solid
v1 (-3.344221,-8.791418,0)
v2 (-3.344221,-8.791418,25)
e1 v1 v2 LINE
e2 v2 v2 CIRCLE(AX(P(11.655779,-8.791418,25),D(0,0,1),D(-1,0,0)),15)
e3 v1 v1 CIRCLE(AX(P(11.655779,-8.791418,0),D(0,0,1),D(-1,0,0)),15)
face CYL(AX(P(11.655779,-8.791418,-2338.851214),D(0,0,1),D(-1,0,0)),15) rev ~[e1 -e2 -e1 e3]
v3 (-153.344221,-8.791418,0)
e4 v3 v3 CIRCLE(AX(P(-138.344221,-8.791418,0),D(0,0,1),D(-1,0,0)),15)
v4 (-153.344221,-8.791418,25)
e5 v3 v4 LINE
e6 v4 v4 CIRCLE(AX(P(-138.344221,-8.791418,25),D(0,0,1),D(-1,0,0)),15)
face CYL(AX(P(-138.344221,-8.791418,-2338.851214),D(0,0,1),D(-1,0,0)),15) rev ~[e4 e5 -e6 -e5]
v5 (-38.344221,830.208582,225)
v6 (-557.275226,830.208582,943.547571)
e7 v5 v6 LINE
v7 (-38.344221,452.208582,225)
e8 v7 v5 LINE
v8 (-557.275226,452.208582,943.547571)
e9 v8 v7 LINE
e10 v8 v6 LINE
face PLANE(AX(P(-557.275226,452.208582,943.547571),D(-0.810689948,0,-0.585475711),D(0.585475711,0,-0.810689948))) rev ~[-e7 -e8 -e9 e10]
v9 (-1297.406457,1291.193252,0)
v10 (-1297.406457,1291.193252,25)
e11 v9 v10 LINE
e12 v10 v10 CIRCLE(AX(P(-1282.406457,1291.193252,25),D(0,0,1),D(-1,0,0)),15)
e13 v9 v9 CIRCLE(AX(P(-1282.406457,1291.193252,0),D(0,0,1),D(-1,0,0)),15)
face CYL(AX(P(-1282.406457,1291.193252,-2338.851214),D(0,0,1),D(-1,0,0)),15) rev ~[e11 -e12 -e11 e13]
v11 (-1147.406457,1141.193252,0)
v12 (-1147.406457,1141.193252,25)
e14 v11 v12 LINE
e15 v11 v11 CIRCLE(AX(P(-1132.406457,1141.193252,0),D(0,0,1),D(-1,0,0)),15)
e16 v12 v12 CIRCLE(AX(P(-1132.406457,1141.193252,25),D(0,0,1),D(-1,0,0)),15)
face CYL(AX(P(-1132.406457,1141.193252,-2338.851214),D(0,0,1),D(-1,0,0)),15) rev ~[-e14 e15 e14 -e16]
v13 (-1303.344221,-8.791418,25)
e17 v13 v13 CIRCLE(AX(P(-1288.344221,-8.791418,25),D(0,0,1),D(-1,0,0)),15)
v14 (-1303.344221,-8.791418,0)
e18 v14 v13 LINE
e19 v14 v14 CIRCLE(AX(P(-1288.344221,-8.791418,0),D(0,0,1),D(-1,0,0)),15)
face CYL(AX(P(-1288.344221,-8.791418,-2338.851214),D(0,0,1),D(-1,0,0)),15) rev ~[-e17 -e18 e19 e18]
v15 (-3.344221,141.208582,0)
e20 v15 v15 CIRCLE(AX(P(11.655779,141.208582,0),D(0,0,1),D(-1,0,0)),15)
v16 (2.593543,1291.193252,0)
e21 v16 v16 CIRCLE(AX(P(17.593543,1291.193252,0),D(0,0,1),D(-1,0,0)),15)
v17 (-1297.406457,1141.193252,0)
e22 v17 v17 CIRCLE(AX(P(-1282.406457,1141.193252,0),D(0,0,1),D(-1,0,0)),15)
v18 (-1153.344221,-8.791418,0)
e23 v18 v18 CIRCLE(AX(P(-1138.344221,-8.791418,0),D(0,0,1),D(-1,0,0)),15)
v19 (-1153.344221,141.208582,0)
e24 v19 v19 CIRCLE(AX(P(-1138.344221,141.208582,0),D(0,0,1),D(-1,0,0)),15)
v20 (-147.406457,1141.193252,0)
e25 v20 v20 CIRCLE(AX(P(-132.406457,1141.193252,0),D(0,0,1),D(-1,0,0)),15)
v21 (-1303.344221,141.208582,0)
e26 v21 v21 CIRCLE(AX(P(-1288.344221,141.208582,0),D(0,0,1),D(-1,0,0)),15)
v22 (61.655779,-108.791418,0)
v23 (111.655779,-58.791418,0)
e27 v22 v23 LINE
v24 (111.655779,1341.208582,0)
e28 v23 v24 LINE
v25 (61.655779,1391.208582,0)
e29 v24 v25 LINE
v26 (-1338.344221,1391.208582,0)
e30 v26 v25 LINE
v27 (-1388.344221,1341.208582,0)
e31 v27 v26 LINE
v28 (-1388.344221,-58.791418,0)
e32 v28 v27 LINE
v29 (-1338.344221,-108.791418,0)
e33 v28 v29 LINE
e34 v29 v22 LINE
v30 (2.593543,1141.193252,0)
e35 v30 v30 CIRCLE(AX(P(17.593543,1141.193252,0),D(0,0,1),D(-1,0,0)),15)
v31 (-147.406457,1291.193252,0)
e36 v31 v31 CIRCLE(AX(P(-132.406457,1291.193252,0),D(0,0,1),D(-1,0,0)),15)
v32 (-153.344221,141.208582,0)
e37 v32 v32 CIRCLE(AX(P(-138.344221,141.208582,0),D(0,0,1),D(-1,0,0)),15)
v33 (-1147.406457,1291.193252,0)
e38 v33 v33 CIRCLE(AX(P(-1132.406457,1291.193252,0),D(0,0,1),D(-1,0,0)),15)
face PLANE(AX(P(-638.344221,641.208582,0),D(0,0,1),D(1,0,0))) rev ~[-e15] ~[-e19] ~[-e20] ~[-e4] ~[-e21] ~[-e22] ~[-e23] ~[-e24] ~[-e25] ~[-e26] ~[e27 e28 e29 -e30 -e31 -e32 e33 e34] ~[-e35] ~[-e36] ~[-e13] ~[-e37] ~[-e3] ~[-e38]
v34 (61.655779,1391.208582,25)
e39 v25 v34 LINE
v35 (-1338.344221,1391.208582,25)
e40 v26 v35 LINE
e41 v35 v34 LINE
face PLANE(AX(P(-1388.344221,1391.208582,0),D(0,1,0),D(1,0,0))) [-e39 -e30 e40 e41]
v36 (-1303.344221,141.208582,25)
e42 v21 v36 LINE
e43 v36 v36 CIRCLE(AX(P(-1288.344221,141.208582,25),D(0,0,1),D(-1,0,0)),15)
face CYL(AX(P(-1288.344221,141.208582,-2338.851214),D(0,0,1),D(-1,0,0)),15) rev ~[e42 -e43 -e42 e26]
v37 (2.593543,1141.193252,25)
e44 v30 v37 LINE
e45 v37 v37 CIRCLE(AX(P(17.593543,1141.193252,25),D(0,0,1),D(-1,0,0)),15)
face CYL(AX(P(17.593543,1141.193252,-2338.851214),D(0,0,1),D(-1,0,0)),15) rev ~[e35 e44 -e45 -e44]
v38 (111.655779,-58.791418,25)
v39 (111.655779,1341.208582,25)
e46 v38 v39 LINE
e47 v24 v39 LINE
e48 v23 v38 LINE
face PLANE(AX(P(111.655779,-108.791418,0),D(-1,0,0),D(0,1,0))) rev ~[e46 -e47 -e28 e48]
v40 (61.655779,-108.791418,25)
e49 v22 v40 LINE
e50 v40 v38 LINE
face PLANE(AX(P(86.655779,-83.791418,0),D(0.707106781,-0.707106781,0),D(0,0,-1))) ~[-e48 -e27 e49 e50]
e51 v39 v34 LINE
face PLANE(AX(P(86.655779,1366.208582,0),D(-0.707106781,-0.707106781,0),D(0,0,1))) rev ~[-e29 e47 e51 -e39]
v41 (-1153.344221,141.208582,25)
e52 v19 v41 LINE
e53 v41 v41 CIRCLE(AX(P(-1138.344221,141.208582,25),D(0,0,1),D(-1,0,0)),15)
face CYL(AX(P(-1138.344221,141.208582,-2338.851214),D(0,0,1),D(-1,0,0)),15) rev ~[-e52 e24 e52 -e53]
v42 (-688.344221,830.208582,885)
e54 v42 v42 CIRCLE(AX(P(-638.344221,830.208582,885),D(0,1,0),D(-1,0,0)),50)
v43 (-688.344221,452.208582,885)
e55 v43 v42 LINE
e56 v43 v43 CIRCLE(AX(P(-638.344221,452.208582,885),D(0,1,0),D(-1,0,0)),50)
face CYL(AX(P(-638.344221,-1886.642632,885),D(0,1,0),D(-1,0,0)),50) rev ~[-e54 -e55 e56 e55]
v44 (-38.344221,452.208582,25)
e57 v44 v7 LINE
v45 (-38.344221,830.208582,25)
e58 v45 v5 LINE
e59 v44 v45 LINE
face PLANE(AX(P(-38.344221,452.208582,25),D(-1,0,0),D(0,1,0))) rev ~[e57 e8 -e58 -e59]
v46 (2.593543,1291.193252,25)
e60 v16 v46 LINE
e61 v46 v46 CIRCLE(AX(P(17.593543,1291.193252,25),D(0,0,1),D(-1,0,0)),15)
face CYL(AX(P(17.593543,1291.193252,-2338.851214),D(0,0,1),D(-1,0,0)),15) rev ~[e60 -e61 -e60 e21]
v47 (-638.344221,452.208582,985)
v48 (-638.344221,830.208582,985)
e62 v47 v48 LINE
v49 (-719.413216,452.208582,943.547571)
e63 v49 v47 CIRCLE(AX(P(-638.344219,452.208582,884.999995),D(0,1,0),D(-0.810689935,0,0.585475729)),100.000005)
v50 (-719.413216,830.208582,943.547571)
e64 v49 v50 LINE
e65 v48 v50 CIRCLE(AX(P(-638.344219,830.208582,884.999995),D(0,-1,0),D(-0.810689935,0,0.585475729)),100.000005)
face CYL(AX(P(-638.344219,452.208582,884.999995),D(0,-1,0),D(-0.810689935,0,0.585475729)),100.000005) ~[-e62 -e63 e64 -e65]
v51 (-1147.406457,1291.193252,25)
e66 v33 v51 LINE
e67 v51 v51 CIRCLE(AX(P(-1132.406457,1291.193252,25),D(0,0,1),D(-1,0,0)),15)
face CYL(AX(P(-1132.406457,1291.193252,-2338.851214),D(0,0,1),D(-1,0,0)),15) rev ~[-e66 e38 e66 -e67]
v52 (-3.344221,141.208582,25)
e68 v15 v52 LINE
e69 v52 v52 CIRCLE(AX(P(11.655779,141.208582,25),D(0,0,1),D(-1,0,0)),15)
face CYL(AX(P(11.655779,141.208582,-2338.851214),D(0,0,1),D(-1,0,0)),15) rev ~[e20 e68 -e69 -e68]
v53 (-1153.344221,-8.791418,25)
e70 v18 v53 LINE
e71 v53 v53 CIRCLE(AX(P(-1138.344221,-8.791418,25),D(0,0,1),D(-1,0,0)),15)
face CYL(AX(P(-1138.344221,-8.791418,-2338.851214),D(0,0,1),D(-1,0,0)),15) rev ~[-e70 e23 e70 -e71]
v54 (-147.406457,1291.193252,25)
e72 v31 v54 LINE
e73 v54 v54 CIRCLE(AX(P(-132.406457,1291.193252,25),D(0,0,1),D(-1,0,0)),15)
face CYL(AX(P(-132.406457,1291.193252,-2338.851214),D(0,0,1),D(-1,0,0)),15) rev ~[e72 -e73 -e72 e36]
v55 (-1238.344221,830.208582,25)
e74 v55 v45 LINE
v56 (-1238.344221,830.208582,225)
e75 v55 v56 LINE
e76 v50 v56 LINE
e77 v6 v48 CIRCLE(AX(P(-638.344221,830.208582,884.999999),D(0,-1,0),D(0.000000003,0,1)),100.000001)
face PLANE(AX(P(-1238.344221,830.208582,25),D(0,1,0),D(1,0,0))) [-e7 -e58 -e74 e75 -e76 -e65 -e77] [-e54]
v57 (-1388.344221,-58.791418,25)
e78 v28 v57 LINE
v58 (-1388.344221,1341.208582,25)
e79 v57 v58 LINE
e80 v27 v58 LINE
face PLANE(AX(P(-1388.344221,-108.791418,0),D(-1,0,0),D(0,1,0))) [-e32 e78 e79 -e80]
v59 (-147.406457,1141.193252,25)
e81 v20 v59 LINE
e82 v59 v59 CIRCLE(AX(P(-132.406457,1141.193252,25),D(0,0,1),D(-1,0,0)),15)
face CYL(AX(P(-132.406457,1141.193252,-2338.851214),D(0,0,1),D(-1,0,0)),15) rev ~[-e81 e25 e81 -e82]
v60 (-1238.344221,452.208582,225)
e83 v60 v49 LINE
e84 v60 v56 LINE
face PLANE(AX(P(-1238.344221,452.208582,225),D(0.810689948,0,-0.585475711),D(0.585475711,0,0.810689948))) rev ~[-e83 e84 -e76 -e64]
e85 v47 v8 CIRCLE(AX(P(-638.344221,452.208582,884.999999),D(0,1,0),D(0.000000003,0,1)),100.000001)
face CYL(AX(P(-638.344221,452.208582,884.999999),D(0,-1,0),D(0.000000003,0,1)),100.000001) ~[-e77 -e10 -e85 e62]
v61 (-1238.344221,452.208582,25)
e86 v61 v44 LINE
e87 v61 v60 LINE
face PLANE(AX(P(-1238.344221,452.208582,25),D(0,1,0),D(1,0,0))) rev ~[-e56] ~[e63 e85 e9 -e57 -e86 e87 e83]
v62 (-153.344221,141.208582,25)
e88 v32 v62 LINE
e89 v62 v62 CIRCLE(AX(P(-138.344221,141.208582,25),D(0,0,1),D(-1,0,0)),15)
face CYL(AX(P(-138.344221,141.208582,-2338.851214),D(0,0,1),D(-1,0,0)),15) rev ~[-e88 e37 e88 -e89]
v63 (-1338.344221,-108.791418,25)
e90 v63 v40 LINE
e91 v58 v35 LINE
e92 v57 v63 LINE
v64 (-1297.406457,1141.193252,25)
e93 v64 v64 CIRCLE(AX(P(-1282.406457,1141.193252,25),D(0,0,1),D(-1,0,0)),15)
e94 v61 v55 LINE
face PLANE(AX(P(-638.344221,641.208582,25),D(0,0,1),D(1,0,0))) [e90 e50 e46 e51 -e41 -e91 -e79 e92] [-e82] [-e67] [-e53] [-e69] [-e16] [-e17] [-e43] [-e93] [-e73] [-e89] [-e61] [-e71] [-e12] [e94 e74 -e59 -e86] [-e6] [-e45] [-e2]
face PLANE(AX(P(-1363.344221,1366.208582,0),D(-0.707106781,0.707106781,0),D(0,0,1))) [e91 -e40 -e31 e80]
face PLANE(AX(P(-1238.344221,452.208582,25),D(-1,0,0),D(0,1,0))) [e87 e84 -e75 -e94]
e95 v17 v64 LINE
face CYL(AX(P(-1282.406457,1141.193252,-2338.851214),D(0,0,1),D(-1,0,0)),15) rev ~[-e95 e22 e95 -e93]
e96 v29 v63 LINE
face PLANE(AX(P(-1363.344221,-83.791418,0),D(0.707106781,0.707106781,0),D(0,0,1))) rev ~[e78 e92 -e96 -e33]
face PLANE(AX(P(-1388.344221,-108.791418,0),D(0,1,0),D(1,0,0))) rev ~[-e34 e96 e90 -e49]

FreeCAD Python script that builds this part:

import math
import FreeCAD as App
import Part
import Sketcher

V = App.Vector


def edges_at(feature, points):
    """Names of the edges that pass closest to the given points."""
    edges = feature.Shape.Edges
    near = lambda p: min(range(len(edges)), key=lambda i: edges[i].distToShape(Part.Vertex(*p))[0])
    return sorted({f"Edge{near(p) + 1}" for p in points})


def add_polygon(sketch, points):
    """Adds a closed chain of lines whose ends are joined by coincident constraints."""
    first, n = sketch.GeometryCount, len(points)
    for a, b in zip(points, points[1:] + points[:1]):
        sketch.addGeometry(Part.LineSegment(App.Vector(*a, 0), App.Vector(*b, 0)), False)
    for i in range(n):
        sketch.addConstraint(Sketcher.Constraint("Coincident", first + i, 2, first + (i + 1) % n, 1))

doc = App.newDocument("Part")
body = doc.addObject("PartDesign::Body", "Body")

# Sketch on XY plane
sketch1 = body.newObject("Sketcher::SketchObject", "Sketch")
sketch1.AttachmentSupport = (doc.getObject("XY_Plane"), [""])
sketch1.MapMode = "FlatFace"
add_polygon(sketch1, [(-1388, 1391), (-1388, -109), (112, -109), (112, 1391)])  # lines 0-3
sketch1.addConstraint([
    Sketcher.Constraint("Vertical", 0),
    Sketcher.Constraint("Horizontal", 1),
    Sketcher.Constraint("Vertical", 2),
    Sketcher.Constraint("Horizontal", 3),
    Sketcher.Constraint("Equal", 3, 0),
    Sketcher.Constraint("DistanceX", 1, 1, 1, 2, 1500.0),
    Sketcher.Constraint("DistanceX", 0, 2, -1, 1, 1388.344221),
    Sketcher.Constraint("DistanceY", -1, 1, 2, 2, 1391.208582),
])
pad1 = body.newObject("PartDesign::Pad", "Pad")
pad1.Profile = sketch1
pad1.Length = 25
doc.recompute()

chamfer = body.newObject("PartDesign::Chamfer", "Chamfer")
chamfer.Base = (pad1, edges_at(pad1, [
    (-1388.344, -108.791, 12.5),
    (111.656, -108.791, 12.5),
    (111.656, 1391.209, 12.5),
    (-1388.344, 1391.209, 12.5),
]))
chamfer.Size = 50

# Sketch on XY plane
sketch2 = body.newObject("Sketcher::SketchObject", "Sketch001")
sketch2.AttachmentSupport = (doc.getObject("XY_Plane"), [""])
sketch2.MapMode = "FlatFace"
sketch2.AttachmentOffset = App.Placement(V(0, 0, 25), App.Rotation())
add_polygon(sketch2, [(-1238, 830), (-1238, 452), (-38, 452), (-38, 830)])  # lines 0-3
sketch2.addConstraint([
    Sketcher.Constraint("Vertical", 0),
    Sketcher.Constraint("Horizontal", 1),
    Sketcher.Constraint("Vertical", 2),
    Sketcher.Constraint("Horizontal", 3),
    Sketcher.Constraint("DistanceX", 1, 1, 1, 2, 1200.0),
    Sketcher.Constraint("DistanceY", 0, 2, 0, 1, 378.0),
    Sketcher.Constraint("DistanceX", 0, 2, -1, 1, 1238.344221),
    Sketcher.Constraint("DistanceY", -1, 1, 0, 2, 452.208582),
])
pad2 = body.newObject("PartDesign::Pad", "Pad001")
pad2.Profile = sketch2
pad2.Length = 960

# Sketch on XZ plane
sketch3 = body.newObject("Sketcher::SketchObject", "Sketch002")
sketch3.AttachmentSupport = (doc.getObject("XZ_Plane"), [""])
sketch3.MapMode = "FlatFace"
sketch3.AttachmentOffset = App.Placement(V(0, 0, -452.208582), App.Rotation())
sketch3.addGeometry(Part.Circle(V(-638, 885, 0), V(0, 0, 1), 50), False)
sketch3.addConstraint([
    Sketcher.Constraint("Diameter", 0, 100.0),
    Sketcher.Constraint("DistanceY", -1, 1, 0, 3, 885.0),
    Sketcher.Constraint("DistanceX", 0, 3, -1, 1, 638.344221),
])
doc.recompute()
hole = body.newObject("PartDesign::Hole", "Hole")
hole.Profile = sketch3
hole.ThreadType = "None"
hole.Diameter = 100
hole.DepthType = "ThroughAll"

# Sketch on XZ plane
sketch4 = body.newObject("Sketcher::SketchObject", "Sketch003")
sketch4.AttachmentSupport = (doc.getObject("XZ_Plane"), [""])
sketch4.MapMode = "FlatFace"
sketch4.AttachmentOffset = App.Placement(V(0, 0, -452.208582), App.Rotation())
sketch4.addGeometry([
    Part.LineSegment(V(-1238, 985, 0), V(-1238, 225, 0)),  # 0
    Part.LineSegment(V(-1238, 225, 0), V(-719, 944, 0)),  # 1
    Part.ArcOfCircle(Part.Circle(V(-638, 885, 0), V(0, 0, 1), 100), math.radians(90), math.radians(144)),  # 2
    Part.LineSegment(V(-638, 985, 0), V(-1238, 985, 0)),  # 3
    Part.LineSegment(V(-38, 985, 0), V(-638, 985, 0)),  # 4
    Part.ArcOfCircle(Part.Circle(V(-638, 885, 0), V(0, 0, 1), 100), math.radians(36), math.radians(90)),  # 5
    Part.LineSegment(V(-557, 944, 0), V(-38, 225, 0)),  # 6
    Part.LineSegment(V(-38, 225, 0), V(-38, 985, 0)),  # 7
], False)
sketch4.addConstraint([
    Sketcher.Constraint("Coincident", 0, 2, 1, 1),
    Sketcher.Constraint("Tangent", 1, 2, 2, 2),
    Sketcher.Constraint("Tangent", 2, 1, 3, 1),
    Sketcher.Constraint("Coincident", 3, 2, 0, 1),
    Sketcher.Constraint("Tangent", 4, 2, 5, 2),
    Sketcher.Constraint("Tangent", 5, 1, 6, 1),
    Sketcher.Constraint("Coincident", 6, 2, 7, 1),
    Sketcher.Constraint("Coincident", 7, 2, 4, 1),
    Sketcher.Constraint("Vertical", 0),
    Sketcher.Constraint("Horizontal", 3),
    Sketcher.Constraint("Horizontal", 4),
    Sketcher.Constraint("Vertical", 7),
    Sketcher.Constraint("Coincident", 5, 3, 2, 3),
    Sketcher.Constraint("Horizontal", 3, 2, 4, 2),
    Sketcher.Constraint("Horizontal", 0, 2, 6, 2),
    Sketcher.Constraint("Equal", 3, 4),
    Sketcher.Constraint("Radius", 5, 100.000001),
    Sketcher.Constraint("DistanceX", 3, 2, 3, 1, 600.0),
    Sketcher.Constraint("DistanceY", 0, 2, 0, 1, 760.0),
    Sketcher.Constraint("DistanceY", -1, 1, 5, 3, 884.999999),
    Sketcher.Constraint("DistanceX", 2, 3, -1, 1, 638.344219),
])
pocket1 = body.newObject("PartDesign::Pocket", "Pocket")
pocket1.Profile = sketch4
pocket1.Length = 532.28619

# Sketch on XY plane
sketch5 = body.newObject("Sketcher::SketchObject", "Sketch004")
sketch5.AttachmentSupport = (doc.getObject("XY_Plane"), [""])
sketch5.MapMode = "FlatFace"
sketch5.addGeometry([
    Part.Circle(V(-1282, 1291, 0), V(0, 0, 1), 15),  # 0
    Part.Circle(V(-1132, 1291, 0), V(0, 0, 1), 15),  # 1
    Part.Circle(V(-1132, 1141, 0), V(0, 0, 1), 15),  # 2
    Part.Circle(V(-1282, 1141, 0), V(0, 0, 1), 15),  # 3
    Part.Circle(V(-1288, 141, 0), V(0, 0, 1), 15),  # 4
    Part.Circle(V(-1138, 141, 0), V(0, 0, 1), 15),  # 5
    Part.Circle(V(-1138, -9, 0), V(0, 0, 1), 15),  # 6
    Part.Circle(V(-1288, -9, 0), V(0, 0, 1), 15),  # 7
    Part.Circle(V(-138, -9, 0), V(0, 0, 1), 15),  # 8
    Part.Circle(V(12, -9, 0), V(0, 0, 1), 15),  # 9
    Part.Circle(V(12, 141, 0), V(0, 0, 1), 15),  # 10
    Part.Circle(V(-138, 141, 0), V(0, 0, 1), 15),  # 11
    Part.Circle(V(-132, 1141, 0), V(0, 0, 1), 15),  # 12
    Part.Circle(V(18, 1141, 0), V(0, 0, 1), 15),  # 13
    Part.Circle(V(18, 1291, 0), V(0, 0, 1), 15),  # 14
    Part.Circle(V(-132, 1291, 0), V(0, 0, 1), 15),  # 15
], False)
sketch5.addConstraint([
    Sketcher.Constraint("Equal", 0, 1),
    Sketcher.Constraint("Equal", 1, 2),
    Sketcher.Constraint("Equal", 2, 3),
    Sketcher.Constraint("Equal", 3, 4),
    Sketcher.Constraint("Equal", 4, 5),
    Sketcher.Constraint("Equal", 5, 6),
    Sketcher.Constraint("Equal", 6, 7),
    Sketcher.Constraint("Equal", 7, 8),
    Sketcher.Constraint("Equal", 8, 9),
    Sketcher.Constraint("Equal", 9, 10),
    Sketcher.Constraint("Equal", 10, 11),
    Sketcher.Constraint("Equal", 11, 12),
    Sketcher.Constraint("Equal", 12, 13),
    Sketcher.Constraint("Equal", 13, 14),
    Sketcher.Constraint("Equal", 14, 15),
    Sketcher.Constraint("Horizontal", 0, 3, 1, 3),
    Sketcher.Constraint("Horizontal", 2, 3, 3, 3),
    Sketcher.Constraint("Horizontal", 4, 3, 5, 3),
    Sketcher.Constraint("Horizontal", 6, 3, 7, 3),
    Sketcher.Constraint("Horizontal", 7, 3, 8, 3),
    Sketcher.Constraint("Horizontal", 8, 3, 9, 3),
    Sketcher.Constraint("Horizontal", 5, 3, 10, 3),
    Sketcher.Constraint("Horizontal", 10, 3, 11, 3),
    Sketcher.Constraint("Horizontal", 3, 3, 12, 3),
    Sketcher.Constraint("Horizontal", 12, 3, 13, 3),
    Sketcher.Constraint("Horizontal", 1, 3, 14, 3),
    Sketcher.Constraint("Horizontal", 14, 3, 15, 3),
    Sketcher.Constraint("Vertical", 1, 3, 2, 3),
    Sketcher.Constraint("Vertical", 0, 3, 3, 3),
    Sketcher.Constraint("Vertical", 5, 3, 6, 3),
    Sketcher.Constraint("Vertical", 4, 3, 7, 3),
    Sketcher.Constraint("Vertical", 9, 3, 10, 3),
    Sketcher.Constraint("Vertical", 8, 3, 11, 3),
    Sketcher.Constraint("Vertical", 13, 3, 14, 3),
    Sketcher.Constraint("Vertical", 12, 3, 15, 3),
    Sketcher.Constraint("Diameter", 0, 30.0),
    Sketcher.Constraint("DistanceX", 0, 3, 1, 3, 150.0),
    Sketcher.Constraint("DistanceY", 2, 3, 1, 3, 150.0),
    Sketcher.Constraint("DistanceX", 4, 3, 5, 3, 150.0),
    Sketcher.Constraint("DistanceY", 6, 3, 5, 3, 150.0),
    Sketcher.Constraint("DistanceX", 6, 3, 8, 3, 1000.0),
    Sketcher.Constraint("DistanceX", 8, 3, 9, 3, 150.0),
    Sketcher.Constraint("DistanceX", 2, 3, 12, 3, 1000.0),
    Sketcher.Constraint("DistanceX", 12, 3, 13, 3, 150.0),
    Sketcher.Constraint("DistanceY", -1, 1, 0, 3, 1291.193252),
    Sketcher.Constraint("DistanceX", 4, 3, -1, 1, 1288.344221),
    Sketcher.Constraint("DistanceY", -1, 1, 4, 3, 141.208582),
    Sketcher.Constraint("DistanceX", 0, 3, -1, 1, 1282.406457),
])
doc.recompute()
hole2 = body.newObject("PartDesign::Hole", "Hole001")
hole2.Profile = sketch5
hole2.ThreadType = "None"
hole2.Diameter = 30
hole2.DepthType = "ThroughAll"
hole2.Reversed = True

doc.recompute()
